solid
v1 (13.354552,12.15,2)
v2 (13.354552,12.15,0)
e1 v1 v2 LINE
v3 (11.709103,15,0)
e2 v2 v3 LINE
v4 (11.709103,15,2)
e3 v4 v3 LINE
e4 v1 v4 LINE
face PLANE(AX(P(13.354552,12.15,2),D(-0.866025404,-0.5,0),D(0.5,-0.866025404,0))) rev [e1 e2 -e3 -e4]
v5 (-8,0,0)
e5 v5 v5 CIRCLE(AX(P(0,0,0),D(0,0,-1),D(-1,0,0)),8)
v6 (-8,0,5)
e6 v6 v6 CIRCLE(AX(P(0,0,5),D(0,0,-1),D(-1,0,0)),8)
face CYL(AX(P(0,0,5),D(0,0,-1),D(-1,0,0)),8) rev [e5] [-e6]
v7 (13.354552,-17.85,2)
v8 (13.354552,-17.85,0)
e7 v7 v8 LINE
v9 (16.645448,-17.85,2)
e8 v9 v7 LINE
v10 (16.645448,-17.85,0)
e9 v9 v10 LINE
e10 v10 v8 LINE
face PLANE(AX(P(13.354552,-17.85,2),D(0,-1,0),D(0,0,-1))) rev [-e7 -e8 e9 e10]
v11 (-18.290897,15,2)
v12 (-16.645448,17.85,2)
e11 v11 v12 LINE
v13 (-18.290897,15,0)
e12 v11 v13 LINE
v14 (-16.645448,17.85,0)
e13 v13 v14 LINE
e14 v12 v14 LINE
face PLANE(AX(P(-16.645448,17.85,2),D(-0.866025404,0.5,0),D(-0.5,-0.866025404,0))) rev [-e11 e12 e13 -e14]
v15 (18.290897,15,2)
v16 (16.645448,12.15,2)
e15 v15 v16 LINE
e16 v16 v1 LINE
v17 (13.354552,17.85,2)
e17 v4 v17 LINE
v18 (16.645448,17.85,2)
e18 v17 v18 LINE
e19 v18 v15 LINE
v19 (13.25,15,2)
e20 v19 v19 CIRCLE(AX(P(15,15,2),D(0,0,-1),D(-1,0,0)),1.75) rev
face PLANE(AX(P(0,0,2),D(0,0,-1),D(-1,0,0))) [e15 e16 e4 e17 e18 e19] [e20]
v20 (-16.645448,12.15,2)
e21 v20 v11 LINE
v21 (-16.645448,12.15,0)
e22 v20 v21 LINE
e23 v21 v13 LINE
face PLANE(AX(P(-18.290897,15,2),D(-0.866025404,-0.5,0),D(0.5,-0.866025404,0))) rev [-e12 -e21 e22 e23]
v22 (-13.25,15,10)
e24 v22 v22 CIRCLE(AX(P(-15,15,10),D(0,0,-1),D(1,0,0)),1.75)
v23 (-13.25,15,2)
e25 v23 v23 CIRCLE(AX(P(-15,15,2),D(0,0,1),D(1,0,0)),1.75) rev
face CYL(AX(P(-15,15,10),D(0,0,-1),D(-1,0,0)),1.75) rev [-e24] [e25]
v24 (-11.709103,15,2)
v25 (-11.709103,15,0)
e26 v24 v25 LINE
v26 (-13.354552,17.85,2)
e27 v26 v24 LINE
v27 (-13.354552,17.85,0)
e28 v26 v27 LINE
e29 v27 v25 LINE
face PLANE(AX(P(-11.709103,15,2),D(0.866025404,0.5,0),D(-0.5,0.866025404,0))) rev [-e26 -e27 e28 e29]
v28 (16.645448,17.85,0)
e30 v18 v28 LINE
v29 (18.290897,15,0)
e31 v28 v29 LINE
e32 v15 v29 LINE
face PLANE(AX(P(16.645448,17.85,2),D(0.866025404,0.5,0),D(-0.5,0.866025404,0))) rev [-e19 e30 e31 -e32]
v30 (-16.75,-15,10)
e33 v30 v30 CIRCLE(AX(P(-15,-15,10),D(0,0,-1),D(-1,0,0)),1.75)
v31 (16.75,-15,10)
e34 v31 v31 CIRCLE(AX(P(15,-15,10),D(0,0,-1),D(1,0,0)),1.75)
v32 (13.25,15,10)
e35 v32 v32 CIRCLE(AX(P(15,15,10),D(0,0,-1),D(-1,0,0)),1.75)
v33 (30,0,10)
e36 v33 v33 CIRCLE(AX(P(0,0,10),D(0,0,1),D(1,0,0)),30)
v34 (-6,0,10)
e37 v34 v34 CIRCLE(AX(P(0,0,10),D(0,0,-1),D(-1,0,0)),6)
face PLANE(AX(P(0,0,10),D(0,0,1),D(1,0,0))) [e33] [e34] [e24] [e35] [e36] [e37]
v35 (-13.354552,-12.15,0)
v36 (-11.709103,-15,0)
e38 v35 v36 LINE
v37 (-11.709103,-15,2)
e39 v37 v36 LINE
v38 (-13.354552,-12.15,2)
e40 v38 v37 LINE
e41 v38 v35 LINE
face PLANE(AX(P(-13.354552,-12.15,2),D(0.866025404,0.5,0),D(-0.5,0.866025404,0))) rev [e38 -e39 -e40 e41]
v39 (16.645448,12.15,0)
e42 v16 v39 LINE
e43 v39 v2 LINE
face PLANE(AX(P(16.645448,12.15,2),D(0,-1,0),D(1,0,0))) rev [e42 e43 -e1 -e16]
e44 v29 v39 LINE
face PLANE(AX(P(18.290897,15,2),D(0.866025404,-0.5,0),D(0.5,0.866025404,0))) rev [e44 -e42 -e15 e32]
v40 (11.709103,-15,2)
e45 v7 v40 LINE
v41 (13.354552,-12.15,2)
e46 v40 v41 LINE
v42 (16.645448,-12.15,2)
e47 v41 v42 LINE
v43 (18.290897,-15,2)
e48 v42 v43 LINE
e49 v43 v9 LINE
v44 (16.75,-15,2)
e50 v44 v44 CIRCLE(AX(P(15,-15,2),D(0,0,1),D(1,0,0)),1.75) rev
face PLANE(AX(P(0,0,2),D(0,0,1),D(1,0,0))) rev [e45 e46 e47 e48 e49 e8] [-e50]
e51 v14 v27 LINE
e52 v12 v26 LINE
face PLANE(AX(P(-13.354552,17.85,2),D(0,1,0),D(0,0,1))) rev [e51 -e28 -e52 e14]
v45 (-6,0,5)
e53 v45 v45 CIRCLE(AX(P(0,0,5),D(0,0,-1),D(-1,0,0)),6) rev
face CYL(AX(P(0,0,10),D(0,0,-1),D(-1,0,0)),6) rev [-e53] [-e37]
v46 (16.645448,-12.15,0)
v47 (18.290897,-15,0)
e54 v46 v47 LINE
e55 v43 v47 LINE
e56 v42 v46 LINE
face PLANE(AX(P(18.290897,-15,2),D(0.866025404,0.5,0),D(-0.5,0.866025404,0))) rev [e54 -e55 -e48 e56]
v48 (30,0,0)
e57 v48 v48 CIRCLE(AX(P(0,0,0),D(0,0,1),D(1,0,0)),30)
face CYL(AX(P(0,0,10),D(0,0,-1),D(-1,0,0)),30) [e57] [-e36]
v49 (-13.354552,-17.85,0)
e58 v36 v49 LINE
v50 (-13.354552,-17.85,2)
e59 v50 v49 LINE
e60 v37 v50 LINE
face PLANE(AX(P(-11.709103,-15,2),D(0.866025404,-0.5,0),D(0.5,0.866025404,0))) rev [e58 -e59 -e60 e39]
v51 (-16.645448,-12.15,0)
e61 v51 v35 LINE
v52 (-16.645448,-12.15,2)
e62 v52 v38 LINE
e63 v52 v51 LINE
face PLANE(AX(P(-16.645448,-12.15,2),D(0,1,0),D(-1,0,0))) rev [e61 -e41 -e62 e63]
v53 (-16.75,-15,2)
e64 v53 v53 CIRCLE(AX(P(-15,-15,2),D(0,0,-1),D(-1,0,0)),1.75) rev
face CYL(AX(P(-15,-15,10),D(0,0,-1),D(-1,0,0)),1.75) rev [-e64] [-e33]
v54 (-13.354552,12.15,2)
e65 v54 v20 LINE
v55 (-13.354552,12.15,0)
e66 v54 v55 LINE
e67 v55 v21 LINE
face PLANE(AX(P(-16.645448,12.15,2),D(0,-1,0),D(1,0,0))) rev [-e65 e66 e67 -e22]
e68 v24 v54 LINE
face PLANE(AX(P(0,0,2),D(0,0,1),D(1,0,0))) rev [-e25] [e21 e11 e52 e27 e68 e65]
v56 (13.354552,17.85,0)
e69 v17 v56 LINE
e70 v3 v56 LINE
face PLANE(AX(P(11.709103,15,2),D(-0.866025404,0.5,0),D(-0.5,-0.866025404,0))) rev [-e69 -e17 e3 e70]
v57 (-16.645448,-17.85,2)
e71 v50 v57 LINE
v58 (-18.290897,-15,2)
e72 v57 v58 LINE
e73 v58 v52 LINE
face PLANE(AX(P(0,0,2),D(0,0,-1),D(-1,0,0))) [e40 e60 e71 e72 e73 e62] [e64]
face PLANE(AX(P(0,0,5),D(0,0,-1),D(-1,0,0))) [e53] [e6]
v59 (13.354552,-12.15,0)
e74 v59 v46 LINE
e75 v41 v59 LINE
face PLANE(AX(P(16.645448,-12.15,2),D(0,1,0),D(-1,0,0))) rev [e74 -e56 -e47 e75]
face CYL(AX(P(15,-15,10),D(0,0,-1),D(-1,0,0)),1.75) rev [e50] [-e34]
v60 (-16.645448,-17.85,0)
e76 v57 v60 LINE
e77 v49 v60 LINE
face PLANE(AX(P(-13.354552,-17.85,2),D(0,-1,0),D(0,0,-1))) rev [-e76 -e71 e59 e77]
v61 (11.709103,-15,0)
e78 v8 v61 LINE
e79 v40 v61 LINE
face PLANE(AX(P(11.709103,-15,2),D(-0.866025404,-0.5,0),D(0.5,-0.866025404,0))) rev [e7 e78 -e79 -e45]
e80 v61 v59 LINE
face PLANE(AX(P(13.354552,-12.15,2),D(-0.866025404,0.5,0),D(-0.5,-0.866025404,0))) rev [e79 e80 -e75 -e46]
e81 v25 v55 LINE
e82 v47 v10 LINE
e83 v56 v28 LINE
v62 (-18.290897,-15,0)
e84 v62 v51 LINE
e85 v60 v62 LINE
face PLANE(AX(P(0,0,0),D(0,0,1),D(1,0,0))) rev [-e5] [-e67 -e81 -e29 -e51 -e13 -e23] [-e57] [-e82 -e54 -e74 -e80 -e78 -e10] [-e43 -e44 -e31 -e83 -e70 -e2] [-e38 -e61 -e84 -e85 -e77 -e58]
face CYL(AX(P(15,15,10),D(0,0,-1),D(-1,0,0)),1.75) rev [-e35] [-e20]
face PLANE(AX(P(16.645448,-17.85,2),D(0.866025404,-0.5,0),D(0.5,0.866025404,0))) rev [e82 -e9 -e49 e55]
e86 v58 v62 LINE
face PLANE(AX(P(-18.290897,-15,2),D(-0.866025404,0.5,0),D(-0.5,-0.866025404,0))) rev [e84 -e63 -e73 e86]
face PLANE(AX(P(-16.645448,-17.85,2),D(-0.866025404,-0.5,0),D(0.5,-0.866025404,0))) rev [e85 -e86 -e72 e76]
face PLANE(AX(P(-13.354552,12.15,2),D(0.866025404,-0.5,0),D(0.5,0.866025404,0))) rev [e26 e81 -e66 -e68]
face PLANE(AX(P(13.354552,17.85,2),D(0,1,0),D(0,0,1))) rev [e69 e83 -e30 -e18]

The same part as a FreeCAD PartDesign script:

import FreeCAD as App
import Part
import Sketcher

V = App.Vector
Q = App.Units.Quantity

doc = App.newDocument("Part")
body = doc.addObject("PartDesign::Body", "Body")

sketch1 = body.newObject("Sketcher::SketchObject", "Sketch")
sketch1.AttachmentSupport = (doc.getObject("XY_Plane"), [""])
sketch1.MapMode = "FlatFace"
sketch1.addGeometry(Part.Circle(V(0, 0, 0), V(0, 0, 1), 30), False)
sketch1.addConstraint(Sketcher.Constraint("Coincident", 0, 3, -1, 1))
sketch1.addConstraint(Sketcher.Constraint("Diameter", 0, 60.0))
pad1 = body.newObject("PartDesign::Pad", "Pad")
pad1.Profile = sketch1
pad1.Length = 10

sketch2 = body.newObject("Sketcher::SketchObject", "Sketch001")
sketch2.AttachmentSupport = (doc.getObject("XY_Plane"), [""])
sketch2.MapMode = "FlatFace"
sketch2.addGeometry(Part.Circle(V(0, 0, 0), V(0, 0, 1), 6), False)
sketch2.addConstraint(Sketcher.Constraint("Coincident", 0, 3, -1, 1))
sketch2.addConstraint(Sketcher.Constraint("Diameter", 0, 12.0))
pocket1 = body.newObject("PartDesign::Pocket", "Pocket")
pocket1.Profile = sketch2
pocket1.Type = "ThroughAll"
pocket1.Reversed = True

sketch3 = body.newObject("Sketcher::SketchObject", "Sketch002")
sketch3.AttachmentSupport = (doc.getObject("XY_Plane"), [""])
sketch3.MapMode = "FlatFace"
sketch3.addGeometry(Part.Circle(V(0, 0, 0), V(0, 0, 1), 8), False)
sketch3.addConstraint(Sketcher.Constraint("Coincident", 0, 3, -1, 1))
sketch3.addConstraint(Sketcher.Constraint("Diameter", 0, 16.0))
pocket2 = body.newObject("PartDesign::Pocket", "Pocket001")
pocket2.Profile = sketch3
pocket2.Length = 5
pocket2.Reversed = True

sketch4 = body.newObject("Sketcher::SketchObject", "Sketch003")
sketch4.AttachmentSupport = (doc.getObject("XY_Plane"), [""])
sketch4.MapMode = "FlatFace"
sketch4.addGeometry(Part.Circle(V(15, 15, 0), V(0, 0, 1), 1.8), False)
sketch4.addGeometry(Part.Circle(V(-15, 15, 0), V(0, 0, 1), 1.8), False)
sketch4.addGeometry(Part.Circle(V(-15, -15, 0), V(0, 0, 1), 1.8), False)
sketch4.addGeometry(Part.Circle(V(15, -15, 0), V(0, 0, 1), 1.8), False)
sketch4.addConstraint(Sketcher.Constraint("Equal", 0, 1))
sketch4.addConstraint(Sketcher.Constraint("Equal", 1, 2))
sketch4.addConstraint(Sketcher.Constraint("Equal", 2, 3))
sketch4.addConstraint(Sketcher.Constraint("Symmetric", 0, 3, 2, 3, -1, 1))
sketch4.addConstraint(Sketcher.Constraint("Symmetric", 1, 3, 3, 3, -1, 1))
sketch4.addConstraint(Sketcher.Constraint("Symmetric", 0, 3, 1, 3, -2))
sketch4.addConstraint(Sketcher.Constraint("Diameter", 0, 3.5))
sketch4.addConstraint(Sketcher.Constraint("DistanceX", -1, 1, 0, 3, 15.0))
sketch4.addConstraint(Sketcher.Constraint("DistanceY", -1, 1, 0, 3, 15.0))
pocket3 = body.newObject("PartDesign::Pocket", "Pocket002")
pocket3.Profile = sketch4
pocket3.Type = "ThroughAll"
pocket3.Reversed = True

sketch5 = body.newObject("Sketcher::SketchObject", "Sketch004")
sketch5.AttachmentSupport = (doc.getObject("XY_Plane"), [""])
sketch5.MapMode = "FlatFace"
sketch5.addGeometry(Part.LineSegment(V(11.7, 15, 0), V(13.4, 17.9, 0)), False)
sketch5.addGeometry(Part.LineSegment(V(13.4, 17.9, 0), V(16.6, 17.9, 0)), False)
sketch5.addGeometry(Part.LineSegment(V(16.6, 17.9, 0), V(18.3, 15, 0)), False)
sketch5.addGeometry(Part.LineSegment(V(18.3, 15, 0), V(16.6, 12.2, 0)), False)
sketch5.addGeometry(Part.LineSegment(V(16.6, 12.2, 0), V(13.4, 12.2, 0)), False)
sketch5.addGeometry(Part.LineSegment(V(13.4, 12.2, 0), V(11.7, 15, 0)), False)
sketch5.addGeometry(Part.LineSegment(V(-11.7, 15, 0), V(-13.4, 12.2, 0)), False)
sketch5.addGeometry(Part.LineSegment(V(-13.4, 12.2, 0), V(-16.6, 12.2, 0)), False)
sketch5.addGeometry(Part.LineSegment(V(-16.6, 12.2, 0), V(-18.3, 15, 0)), False)
sketch5.addGeometry(Part.LineSegment(V(-18.3, 15, 0), V(-16.6, 17.9, 0)), False)
sketch5.addGeometry(Part.LineSegment(V(-16.6, 17.9, 0), V(-13.4, 17.9, 0)), False)
sketch5.addGeometry(Part.LineSegment(V(-13.4, 17.9, 0), V(-11.7, 15, 0)), False)
sketch5.addGeometry(Part.LineSegment(V(-11.7, -15, 0), V(-13.4, -17.9, 0)), False)
sketch5.addGeometry(Part.LineSegment(V(-13.4, -17.9, 0), V(-16.6, -17.9, 0)), False)
sketch5.addGeometry(Part.LineSegment(V(-16.6, -17.9, 0), V(-18.3, -15, 0)), False)
sketch5.addGeometry(Part.LineSegment(V(-18.3, -15, 0), V(-16.6, -12.2, 0)), False)
sketch5.addGeometry(Part.LineSegment(V(-16.6, -12.2, 0), V(-13.4, -12.2, 0)), False)
sketch5.addGeometry(Part.LineSegment(V(-13.4, -12.2, 0), V(-11.7, -15, 0)), False)
sketch5.addGeometry(Part.LineSegment(V(11.7, -15, 0), V(13.4, -12.2, 0)), False)
sketch5.addGeometry(Part.LineSegment(V(13.4, -12.2, 0), V(16.6, -12.2, 0)), False)
sketch5.addGeometry(Part.LineSegment(V(16.6, -12.2, 0), V(18.3, -15, 0)), False)
sketch5.addGeometry(Part.LineSegment(V(18.3, -15, 0), V(16.6, -17.9, 0)), False)
sketch5.addGeometry(Part.LineSegment(V(16.6, -17.9, 0), V(13.4, -17.9, 0)), False)
sketch5.addGeometry(Part.LineSegment(V(13.4, -17.9, 0), V(11.7, -15, 0)), False)
sketch5.addConstraint(Sketcher.Constraint("Coincident", 0, 2, 1, 1))
sketch5.addConstraint(Sketcher.Constraint("Coincident", 1, 2, 2, 1))
sketch5.addConstraint(Sketcher.Constraint("Coincident", 2, 2, 3, 1))
sketch5.addConstraint(Sketcher.Constraint("Coincident", 3, 2, 4, 1))
sketch5.addConstraint(Sketcher.Constraint("Coincident", 4, 2, 5, 1))
sketch5.addConstraint(Sketcher.Constraint("Coincident", 5, 2, 0, 1))
sketch5.addConstraint(Sketcher.Constraint("Coincident", 6, 2, 7, 1))
sketch5.addConstraint(Sketcher.Constraint("Coincident", 7, 2, 8, 1))
sketch5.addConstraint(Sketcher.Constraint("Coincident", 8, 2, 9, 1))
sketch5.addConstraint(Sketcher.Constraint("Coincident", 9, 2, 10, 1))
sketch5.addConstraint(Sketcher.Constraint("Coincident", 10, 2, 11, 1))
sketch5.addConstraint(Sketcher.Constraint("Coincident", 11, 2, 6, 1))
sketch5.addConstraint(Sketcher.Constraint("Coincident", 12, 2, 13, 1))
sketch5.addConstraint(Sketcher.Constraint("Coincident", 13, 2, 14, 1))
sketch5.addConstraint(Sketcher.Constraint("Coincident", 14, 2, 15, 1))
sketch5.addConstraint(Sketcher.Constraint("Coincident", 15, 2, 16, 1))
sketch5.addConstraint(Sketcher.Constraint("Coincident", 16, 2, 17, 1))
sketch5.addConstraint(Sketcher.Constraint("Coincident", 17, 2, 12, 1))
sketch5.addConstraint(Sketcher.Constraint("Coincident", 18, 2, 19, 1))
sketch5.addConstraint(Sketcher.Constraint("Coincident", 19, 2, 20, 1))
sketch5.addConstraint(Sketcher.Constraint("Coincident", 20, 2, 21, 1))
sketch5.addConstraint(Sketcher.Constraint("Coincident", 21, 2, 22, 1))
sketch5.addConstraint(Sketcher.Constraint("Coincident", 22, 2, 23, 1))
sketch5.addConstraint(Sketcher.Constraint("Coincident", 23, 2, 18, 1))
sketch5.addConstraint(Sketcher.Constraint("Horizontal", 1))
sketch5.addConstraint(Sketcher.Constraint("Horizontal", 4))
sketch5.addConstraint(Sketcher.Constraint("Horizontal", 7))
sketch5.addConstraint(Sketcher.Constraint("Horizontal", 10))
sketch5.addConstraint(Sketcher.Constraint("Horizontal", 13))
sketch5.addConstraint(Sketcher.Constraint("Horizontal", 16))
sketch5.addConstraint(Sketcher.Constraint("Horizontal", 19))
sketch5.addConstraint(Sketcher.Constraint("Horizontal", 22))
sketch5.addConstraint(Sketcher.Constraint("Symmetric", 0, 2, 12, 2, -1, 1))
sketch5.addConstraint(Sketcher.Constraint("Symmetric", 2, 2, 14, 2, -1, 1))
sketch5.addConstraint(Sketcher.Constraint("Symmetric", 3, 2, 15, 2, -1, 1))
sketch5.addConstraint(Sketcher.Constraint("Symmetric", 5, 2, 17, 2, -1, 1))
sketch5.addConstraint(Sketcher.Constraint("Symmetric", 6, 2, 18, 2, -1, 1))
sketch5.addConstraint(Sketcher.Constraint("Symmetric", 8, 2, 20, 2, -1, 1))
sketch5.addConstraint(Sketcher.Constraint("Symmetric", 9, 2, 21, 2, -1, 1))
sketch5.addConstraint(Sketcher.Constraint("Symmetric", 11, 2, 23, 2, -1, 1))
sketch5.addConstraint(Sketcher.Constraint("Symmetric", 4, 2, 6, 2, -2))
sketch5.addConstraint(Sketcher.Constraint("Symmetric", 2, 2, 8, 2, -2))
sketch5.addConstraint(Sketcher.Constraint("Symmetric", 1, 2, 9, 2, -2))
sketch5.addConstraint(Sketcher.Constraint("Symmetric", 5, 2, 11, 2, -2))
sketch5.addConstraint(Sketcher.Constraint("Parallel", 0, 3))
sketch5.addConstraint(Sketcher.Constraint("Parallel", 2, 5))
sketch5.addConstraint(Sketcher.Constraint("Parallel", 3, 6))
sketch5.addConstraint(Sketcher.Constraint("Parallel", 5, 8))
sketch5.addConstraint(Sketcher.Constraint("Parallel", 8, 11))
sketch5.addConstraint(Sketcher.Constraint("Parallel", 11, 14))
sketch5.addConstraint(Sketcher.Constraint("Parallel", 14, 17))
sketch5.addConstraint(Sketcher.Constraint("Parallel", 17, 20))
sketch5.addConstraint(Sketcher.Constraint("Parallel", 20, 23))
sketch5.addConstraint(Sketcher.Constraint("Horizontal", 2, 2, 5, 2))
sketch5.addConstraint(Sketcher.Constraint("Vertical", 1, 2, 3, 2))
sketch5.addConstraint(Sketcher.Constraint("Angle", 0, Q("60 deg")))
sketch5.addConstraint(Sketcher.Constraint("DistanceY", -1, 1, 2, 2, 15.0))
sketch5.addConstraint(Sketcher.Constraint("DistanceX", 6, 2, 3, 2, 30.0))
sketch5.addConstraint(Sketcher.Constraint("DistanceY", 3, 2, 1, 2, 5.7))
sketch5.addConstraint(Sketcher.Constraint("DistanceX", 1, 1, 1, 2, 3.290897))
pocket4 = body.newObject("PartDesign::Pocket", "Pocket003")
pocket4.Profile = sketch5
pocket4.Length = 2
pocket4.Reversed = True

doc.recompute()
